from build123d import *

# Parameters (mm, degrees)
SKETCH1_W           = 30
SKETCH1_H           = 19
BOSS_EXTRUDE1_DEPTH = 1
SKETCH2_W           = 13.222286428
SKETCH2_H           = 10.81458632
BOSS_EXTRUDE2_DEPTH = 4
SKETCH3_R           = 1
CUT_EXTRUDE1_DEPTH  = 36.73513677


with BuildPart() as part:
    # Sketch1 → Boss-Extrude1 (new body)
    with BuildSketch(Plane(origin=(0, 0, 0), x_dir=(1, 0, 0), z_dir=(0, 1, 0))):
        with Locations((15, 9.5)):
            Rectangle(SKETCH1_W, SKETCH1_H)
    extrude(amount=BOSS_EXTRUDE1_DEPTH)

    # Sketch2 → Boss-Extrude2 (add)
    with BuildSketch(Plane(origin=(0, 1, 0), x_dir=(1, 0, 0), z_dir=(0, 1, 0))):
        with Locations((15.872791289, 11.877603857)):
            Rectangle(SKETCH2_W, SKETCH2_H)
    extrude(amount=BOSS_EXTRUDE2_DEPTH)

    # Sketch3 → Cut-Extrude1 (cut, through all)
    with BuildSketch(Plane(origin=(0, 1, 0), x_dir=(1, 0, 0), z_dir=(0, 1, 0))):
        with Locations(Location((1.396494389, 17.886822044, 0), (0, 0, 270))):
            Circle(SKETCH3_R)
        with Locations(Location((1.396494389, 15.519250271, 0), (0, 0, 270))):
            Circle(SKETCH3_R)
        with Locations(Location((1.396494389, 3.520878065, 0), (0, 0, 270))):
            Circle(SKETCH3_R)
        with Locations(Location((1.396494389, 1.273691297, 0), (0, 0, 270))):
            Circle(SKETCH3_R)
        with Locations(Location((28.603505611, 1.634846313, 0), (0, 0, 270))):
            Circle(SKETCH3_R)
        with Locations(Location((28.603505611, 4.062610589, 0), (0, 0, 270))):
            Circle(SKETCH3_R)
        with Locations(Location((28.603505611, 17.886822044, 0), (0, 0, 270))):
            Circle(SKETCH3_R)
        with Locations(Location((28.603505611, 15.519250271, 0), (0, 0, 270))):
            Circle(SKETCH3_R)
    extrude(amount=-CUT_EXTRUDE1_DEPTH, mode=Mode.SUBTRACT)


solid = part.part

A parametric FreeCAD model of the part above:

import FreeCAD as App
import Part
import Sketcher
from FreeCAD import Vector
Q = App.Units.Quantity


def add_polygon(sketch, points):
    """Adds a closed chain of lines whose ends are joined by coincident constraints."""
    first, n = sketch.GeometryCount, len(points)
    for a, b in zip(points, points[1:] + points[:1]):
        sketch.addGeometry(Part.LineSegment(App.Vector(*a, 0), App.Vector(*b, 0)), False)
    for i in range(n):
        sketch.addConstraint(Sketcher.Constraint("Coincident", first + i, 2, first + (i + 1) % n, 1))

doc = App.newDocument("Part")
body = doc.addObject("PartDesign::Body", "Body")

# Sketch on XZ plane
sketch1 = body.newObject("Sketcher::SketchObject", "Sketch")
sketch1.AttachmentSupport = (doc.getObject("XZ_Plane"), [""])
sketch1.MapMode = "FlatFace"
add_polygon(sketch1, [(0, -19), (0, 0), (30, 0), (30, -19)])  # lines 0-3
sketch1.addConstraint(Sketcher.Constraint("Vertical", 0))
sketch1.addConstraint(Sketcher.Constraint("Horizontal", 1))
sketch1.addConstraint(Sketcher.Constraint("Vertical", 2))
sketch1.addConstraint(Sketcher.Constraint("Horizontal", 3))
sketch1.addConstraint(Sketcher.Constraint("Coincident", 0, 2, -1, 1))
sketch1.addConstraint(Sketcher.Constraint("DistanceX", 1, 1, 1, 2, Q("30 mm")))
sketch1.addConstraint(Sketcher.Constraint("DistanceY", 0, 1, 0, 2, Q("19 mm")))
pad1 = body.newObject("PartDesign::Pad", "Pad")
pad1.Profile = sketch1
pad1.Length = 1
pad1.Reversed = True

# Sketch on XZ plane
sketch2 = body.newObject("Sketcher::SketchObject", "Sketch001")
sketch2.AttachmentSupport = (doc.getObject("XZ_Plane"), [""])
sketch2.MapMode = "FlatFace"
sketch2.AttachmentOffset = App.Placement(Vector(0, 0, -1), App.Rotation())
add_polygon(sketch2, [(9, -17), (9, -6), (22, -6), (22, -17)])  # lines 0-3
sketch2.addConstraint(Sketcher.Constraint("Vertical", 0))
sketch2.addConstraint(Sketcher.Constraint("Horizontal", 1))
sketch2.addConstraint(Sketcher.Constraint("Vertical", 2))
sketch2.addConstraint(Sketcher.Constraint("Horizontal", 3))
sketch2.addConstraint(Sketcher.Constraint("DistanceX", 1, 1, 1, 2, Q("13.222286 mm")))
sketch2.addConstraint(Sketcher.Constraint("DistanceY", 0, 1, 0, 2, Q("10.814586 mm")))
sketch2.addConstraint(Sketcher.Constraint("DistanceX", -1, 1, 0, 2, Q("9.261648 mm")))
sketch2.addConstraint(Sketcher.Constraint("DistanceY", 0, 2, -1, 1, Q("6.470311 mm")))
pad2 = body.newObject("PartDesign::Pad", "Pad001")
pad2.Profile = sketch2
pad2.Length = 4
pad2.Reversed = True

# Sketch on XZ plane
sketch3 = body.newObject("Sketcher::SketchObject", "Sketch002")
sketch3.AttachmentSupport = (doc.getObject("XZ_Plane"), [""])
sketch3.MapMode = "FlatFace"
sketch3.AttachmentOffset = App.Placement(Vector(0, 0, -1), App.Rotation())
sketch3.addGeometry(Part.Circle(Vector(1.4, -17.9, 0), Vector(0, 0, 1), 1), False)
sketch3.addGeometry(Part.Circle(Vector(1.4, -15.5, 0), Vector(0, 0, 1), 1), False)
sketch3.addGeometry(Part.Circle(Vector(1.4, -3.5, 0), Vector(0, 0, 1), 1), False)
sketch3.addGeometry(Part.Circle(Vector(1.4, -1.3, 0), Vector(0, 0, 1), 1), False)
sketch3.addGeometry(Part.Circle(Vector(28.6, -1.6, 0), Vector(0, 0, 1), 1), False)
sketch3.addGeometry(Part.Circle(Vector(28.6, -4.1, 0), Vector(0, 0, 1), 1), False)
sketch3.addGeometry(Part.Circle(Vector(28.6, -17.9, 0), Vector(0, 0, 1), 1), False)
sketch3.addGeometry(Part.Circle(Vector(28.6, -15.5, 0), Vector(0, 0, 1), 1), False)
sketch3.addConstraint(Sketcher.Constraint("Equal", 0, 1))
sketch3.addConstraint(Sketcher.Constraint("Equal", 1, 2))
sketch3.addConstraint(Sketcher.Constraint("Equal", 2, 3))
sketch3.addConstraint(Sketcher.Constraint("Equal", 3, 4))
sketch3.addConstraint(Sketcher.Constraint("Equal", 4, 5))
sketch3.addConstraint(Sketcher.Constraint("Equal", 5, 6))
sketch3.addConstraint(Sketcher.Constraint("Equal", 6, 7))
sketch3.addConstraint(Sketcher.Constraint("Horizontal", 0, 3, 6, 3))
sketch3.addConstraint(Sketcher.Constraint("Horizontal", 1, 3, 7, 3))
sketch3.addConstraint(Sketcher.Constraint("Vertical", 0, 3, 1, 3))
sketch3.addConstraint(Sketcher.Constraint("Vertical", 1, 3, 2, 3))
sketch3.addConstraint(Sketcher.Constraint("Vertical", 2, 3, 3, 3))
sketch3.addConstraint(Sketcher.Constraint("Vertical", 4, 3, 5, 3))
sketch3.addConstraint(Sketcher.Constraint("Vertical", 5, 3, 6, 3))
sketch3.addConstraint(Sketcher.Constraint("Vertical", 6, 3, 7, 3))
sketch3.addConstraint(Sketcher.Constraint("Diameter", 0, Q("2 mm")))
sketch3.addConstraint(Sketcher.Constraint("DistanceY", 1, 3, -1, 1, Q("15.51925 mm")))
sketch3.addConstraint(Sketcher.Constraint("DistanceY", 2, 3, -1, 1, Q("3.520878 mm")))
sketch3.addConstraint(Sketcher.Constraint("DistanceY", 3, 3, -1, 1, Q("1.273691 mm")))
sketch3.addConstraint(Sketcher.Constraint("DistanceY", 5, 3, -1, 1, Q("4.062611 mm")))
sketch3.addConstraint(Sketcher.Constraint("DistanceY", 0, 3, 1, 3, Q("2.367572 mm")))
sketch3.addConstraint(Sketcher.Constraint("DistanceX", 3, 3, 4, 3, Q("27.207011 mm")))
sketch3.addConstraint(Sketcher.Constraint("DistanceY", 2, 3, 4, 3, Q("1.886032 mm")))
sketch3.addConstraint(Sketcher.Constraint("DistanceX", -1, 1, 0, 3, Q("1.396494 mm")))
pocket1 = body.newObject("PartDesign::Pocket", "Pocket")
pocket1.Profile = sketch3
pocket1.Type = "ThroughAll"
pocket1.Reversed = True

doc.recompute()
